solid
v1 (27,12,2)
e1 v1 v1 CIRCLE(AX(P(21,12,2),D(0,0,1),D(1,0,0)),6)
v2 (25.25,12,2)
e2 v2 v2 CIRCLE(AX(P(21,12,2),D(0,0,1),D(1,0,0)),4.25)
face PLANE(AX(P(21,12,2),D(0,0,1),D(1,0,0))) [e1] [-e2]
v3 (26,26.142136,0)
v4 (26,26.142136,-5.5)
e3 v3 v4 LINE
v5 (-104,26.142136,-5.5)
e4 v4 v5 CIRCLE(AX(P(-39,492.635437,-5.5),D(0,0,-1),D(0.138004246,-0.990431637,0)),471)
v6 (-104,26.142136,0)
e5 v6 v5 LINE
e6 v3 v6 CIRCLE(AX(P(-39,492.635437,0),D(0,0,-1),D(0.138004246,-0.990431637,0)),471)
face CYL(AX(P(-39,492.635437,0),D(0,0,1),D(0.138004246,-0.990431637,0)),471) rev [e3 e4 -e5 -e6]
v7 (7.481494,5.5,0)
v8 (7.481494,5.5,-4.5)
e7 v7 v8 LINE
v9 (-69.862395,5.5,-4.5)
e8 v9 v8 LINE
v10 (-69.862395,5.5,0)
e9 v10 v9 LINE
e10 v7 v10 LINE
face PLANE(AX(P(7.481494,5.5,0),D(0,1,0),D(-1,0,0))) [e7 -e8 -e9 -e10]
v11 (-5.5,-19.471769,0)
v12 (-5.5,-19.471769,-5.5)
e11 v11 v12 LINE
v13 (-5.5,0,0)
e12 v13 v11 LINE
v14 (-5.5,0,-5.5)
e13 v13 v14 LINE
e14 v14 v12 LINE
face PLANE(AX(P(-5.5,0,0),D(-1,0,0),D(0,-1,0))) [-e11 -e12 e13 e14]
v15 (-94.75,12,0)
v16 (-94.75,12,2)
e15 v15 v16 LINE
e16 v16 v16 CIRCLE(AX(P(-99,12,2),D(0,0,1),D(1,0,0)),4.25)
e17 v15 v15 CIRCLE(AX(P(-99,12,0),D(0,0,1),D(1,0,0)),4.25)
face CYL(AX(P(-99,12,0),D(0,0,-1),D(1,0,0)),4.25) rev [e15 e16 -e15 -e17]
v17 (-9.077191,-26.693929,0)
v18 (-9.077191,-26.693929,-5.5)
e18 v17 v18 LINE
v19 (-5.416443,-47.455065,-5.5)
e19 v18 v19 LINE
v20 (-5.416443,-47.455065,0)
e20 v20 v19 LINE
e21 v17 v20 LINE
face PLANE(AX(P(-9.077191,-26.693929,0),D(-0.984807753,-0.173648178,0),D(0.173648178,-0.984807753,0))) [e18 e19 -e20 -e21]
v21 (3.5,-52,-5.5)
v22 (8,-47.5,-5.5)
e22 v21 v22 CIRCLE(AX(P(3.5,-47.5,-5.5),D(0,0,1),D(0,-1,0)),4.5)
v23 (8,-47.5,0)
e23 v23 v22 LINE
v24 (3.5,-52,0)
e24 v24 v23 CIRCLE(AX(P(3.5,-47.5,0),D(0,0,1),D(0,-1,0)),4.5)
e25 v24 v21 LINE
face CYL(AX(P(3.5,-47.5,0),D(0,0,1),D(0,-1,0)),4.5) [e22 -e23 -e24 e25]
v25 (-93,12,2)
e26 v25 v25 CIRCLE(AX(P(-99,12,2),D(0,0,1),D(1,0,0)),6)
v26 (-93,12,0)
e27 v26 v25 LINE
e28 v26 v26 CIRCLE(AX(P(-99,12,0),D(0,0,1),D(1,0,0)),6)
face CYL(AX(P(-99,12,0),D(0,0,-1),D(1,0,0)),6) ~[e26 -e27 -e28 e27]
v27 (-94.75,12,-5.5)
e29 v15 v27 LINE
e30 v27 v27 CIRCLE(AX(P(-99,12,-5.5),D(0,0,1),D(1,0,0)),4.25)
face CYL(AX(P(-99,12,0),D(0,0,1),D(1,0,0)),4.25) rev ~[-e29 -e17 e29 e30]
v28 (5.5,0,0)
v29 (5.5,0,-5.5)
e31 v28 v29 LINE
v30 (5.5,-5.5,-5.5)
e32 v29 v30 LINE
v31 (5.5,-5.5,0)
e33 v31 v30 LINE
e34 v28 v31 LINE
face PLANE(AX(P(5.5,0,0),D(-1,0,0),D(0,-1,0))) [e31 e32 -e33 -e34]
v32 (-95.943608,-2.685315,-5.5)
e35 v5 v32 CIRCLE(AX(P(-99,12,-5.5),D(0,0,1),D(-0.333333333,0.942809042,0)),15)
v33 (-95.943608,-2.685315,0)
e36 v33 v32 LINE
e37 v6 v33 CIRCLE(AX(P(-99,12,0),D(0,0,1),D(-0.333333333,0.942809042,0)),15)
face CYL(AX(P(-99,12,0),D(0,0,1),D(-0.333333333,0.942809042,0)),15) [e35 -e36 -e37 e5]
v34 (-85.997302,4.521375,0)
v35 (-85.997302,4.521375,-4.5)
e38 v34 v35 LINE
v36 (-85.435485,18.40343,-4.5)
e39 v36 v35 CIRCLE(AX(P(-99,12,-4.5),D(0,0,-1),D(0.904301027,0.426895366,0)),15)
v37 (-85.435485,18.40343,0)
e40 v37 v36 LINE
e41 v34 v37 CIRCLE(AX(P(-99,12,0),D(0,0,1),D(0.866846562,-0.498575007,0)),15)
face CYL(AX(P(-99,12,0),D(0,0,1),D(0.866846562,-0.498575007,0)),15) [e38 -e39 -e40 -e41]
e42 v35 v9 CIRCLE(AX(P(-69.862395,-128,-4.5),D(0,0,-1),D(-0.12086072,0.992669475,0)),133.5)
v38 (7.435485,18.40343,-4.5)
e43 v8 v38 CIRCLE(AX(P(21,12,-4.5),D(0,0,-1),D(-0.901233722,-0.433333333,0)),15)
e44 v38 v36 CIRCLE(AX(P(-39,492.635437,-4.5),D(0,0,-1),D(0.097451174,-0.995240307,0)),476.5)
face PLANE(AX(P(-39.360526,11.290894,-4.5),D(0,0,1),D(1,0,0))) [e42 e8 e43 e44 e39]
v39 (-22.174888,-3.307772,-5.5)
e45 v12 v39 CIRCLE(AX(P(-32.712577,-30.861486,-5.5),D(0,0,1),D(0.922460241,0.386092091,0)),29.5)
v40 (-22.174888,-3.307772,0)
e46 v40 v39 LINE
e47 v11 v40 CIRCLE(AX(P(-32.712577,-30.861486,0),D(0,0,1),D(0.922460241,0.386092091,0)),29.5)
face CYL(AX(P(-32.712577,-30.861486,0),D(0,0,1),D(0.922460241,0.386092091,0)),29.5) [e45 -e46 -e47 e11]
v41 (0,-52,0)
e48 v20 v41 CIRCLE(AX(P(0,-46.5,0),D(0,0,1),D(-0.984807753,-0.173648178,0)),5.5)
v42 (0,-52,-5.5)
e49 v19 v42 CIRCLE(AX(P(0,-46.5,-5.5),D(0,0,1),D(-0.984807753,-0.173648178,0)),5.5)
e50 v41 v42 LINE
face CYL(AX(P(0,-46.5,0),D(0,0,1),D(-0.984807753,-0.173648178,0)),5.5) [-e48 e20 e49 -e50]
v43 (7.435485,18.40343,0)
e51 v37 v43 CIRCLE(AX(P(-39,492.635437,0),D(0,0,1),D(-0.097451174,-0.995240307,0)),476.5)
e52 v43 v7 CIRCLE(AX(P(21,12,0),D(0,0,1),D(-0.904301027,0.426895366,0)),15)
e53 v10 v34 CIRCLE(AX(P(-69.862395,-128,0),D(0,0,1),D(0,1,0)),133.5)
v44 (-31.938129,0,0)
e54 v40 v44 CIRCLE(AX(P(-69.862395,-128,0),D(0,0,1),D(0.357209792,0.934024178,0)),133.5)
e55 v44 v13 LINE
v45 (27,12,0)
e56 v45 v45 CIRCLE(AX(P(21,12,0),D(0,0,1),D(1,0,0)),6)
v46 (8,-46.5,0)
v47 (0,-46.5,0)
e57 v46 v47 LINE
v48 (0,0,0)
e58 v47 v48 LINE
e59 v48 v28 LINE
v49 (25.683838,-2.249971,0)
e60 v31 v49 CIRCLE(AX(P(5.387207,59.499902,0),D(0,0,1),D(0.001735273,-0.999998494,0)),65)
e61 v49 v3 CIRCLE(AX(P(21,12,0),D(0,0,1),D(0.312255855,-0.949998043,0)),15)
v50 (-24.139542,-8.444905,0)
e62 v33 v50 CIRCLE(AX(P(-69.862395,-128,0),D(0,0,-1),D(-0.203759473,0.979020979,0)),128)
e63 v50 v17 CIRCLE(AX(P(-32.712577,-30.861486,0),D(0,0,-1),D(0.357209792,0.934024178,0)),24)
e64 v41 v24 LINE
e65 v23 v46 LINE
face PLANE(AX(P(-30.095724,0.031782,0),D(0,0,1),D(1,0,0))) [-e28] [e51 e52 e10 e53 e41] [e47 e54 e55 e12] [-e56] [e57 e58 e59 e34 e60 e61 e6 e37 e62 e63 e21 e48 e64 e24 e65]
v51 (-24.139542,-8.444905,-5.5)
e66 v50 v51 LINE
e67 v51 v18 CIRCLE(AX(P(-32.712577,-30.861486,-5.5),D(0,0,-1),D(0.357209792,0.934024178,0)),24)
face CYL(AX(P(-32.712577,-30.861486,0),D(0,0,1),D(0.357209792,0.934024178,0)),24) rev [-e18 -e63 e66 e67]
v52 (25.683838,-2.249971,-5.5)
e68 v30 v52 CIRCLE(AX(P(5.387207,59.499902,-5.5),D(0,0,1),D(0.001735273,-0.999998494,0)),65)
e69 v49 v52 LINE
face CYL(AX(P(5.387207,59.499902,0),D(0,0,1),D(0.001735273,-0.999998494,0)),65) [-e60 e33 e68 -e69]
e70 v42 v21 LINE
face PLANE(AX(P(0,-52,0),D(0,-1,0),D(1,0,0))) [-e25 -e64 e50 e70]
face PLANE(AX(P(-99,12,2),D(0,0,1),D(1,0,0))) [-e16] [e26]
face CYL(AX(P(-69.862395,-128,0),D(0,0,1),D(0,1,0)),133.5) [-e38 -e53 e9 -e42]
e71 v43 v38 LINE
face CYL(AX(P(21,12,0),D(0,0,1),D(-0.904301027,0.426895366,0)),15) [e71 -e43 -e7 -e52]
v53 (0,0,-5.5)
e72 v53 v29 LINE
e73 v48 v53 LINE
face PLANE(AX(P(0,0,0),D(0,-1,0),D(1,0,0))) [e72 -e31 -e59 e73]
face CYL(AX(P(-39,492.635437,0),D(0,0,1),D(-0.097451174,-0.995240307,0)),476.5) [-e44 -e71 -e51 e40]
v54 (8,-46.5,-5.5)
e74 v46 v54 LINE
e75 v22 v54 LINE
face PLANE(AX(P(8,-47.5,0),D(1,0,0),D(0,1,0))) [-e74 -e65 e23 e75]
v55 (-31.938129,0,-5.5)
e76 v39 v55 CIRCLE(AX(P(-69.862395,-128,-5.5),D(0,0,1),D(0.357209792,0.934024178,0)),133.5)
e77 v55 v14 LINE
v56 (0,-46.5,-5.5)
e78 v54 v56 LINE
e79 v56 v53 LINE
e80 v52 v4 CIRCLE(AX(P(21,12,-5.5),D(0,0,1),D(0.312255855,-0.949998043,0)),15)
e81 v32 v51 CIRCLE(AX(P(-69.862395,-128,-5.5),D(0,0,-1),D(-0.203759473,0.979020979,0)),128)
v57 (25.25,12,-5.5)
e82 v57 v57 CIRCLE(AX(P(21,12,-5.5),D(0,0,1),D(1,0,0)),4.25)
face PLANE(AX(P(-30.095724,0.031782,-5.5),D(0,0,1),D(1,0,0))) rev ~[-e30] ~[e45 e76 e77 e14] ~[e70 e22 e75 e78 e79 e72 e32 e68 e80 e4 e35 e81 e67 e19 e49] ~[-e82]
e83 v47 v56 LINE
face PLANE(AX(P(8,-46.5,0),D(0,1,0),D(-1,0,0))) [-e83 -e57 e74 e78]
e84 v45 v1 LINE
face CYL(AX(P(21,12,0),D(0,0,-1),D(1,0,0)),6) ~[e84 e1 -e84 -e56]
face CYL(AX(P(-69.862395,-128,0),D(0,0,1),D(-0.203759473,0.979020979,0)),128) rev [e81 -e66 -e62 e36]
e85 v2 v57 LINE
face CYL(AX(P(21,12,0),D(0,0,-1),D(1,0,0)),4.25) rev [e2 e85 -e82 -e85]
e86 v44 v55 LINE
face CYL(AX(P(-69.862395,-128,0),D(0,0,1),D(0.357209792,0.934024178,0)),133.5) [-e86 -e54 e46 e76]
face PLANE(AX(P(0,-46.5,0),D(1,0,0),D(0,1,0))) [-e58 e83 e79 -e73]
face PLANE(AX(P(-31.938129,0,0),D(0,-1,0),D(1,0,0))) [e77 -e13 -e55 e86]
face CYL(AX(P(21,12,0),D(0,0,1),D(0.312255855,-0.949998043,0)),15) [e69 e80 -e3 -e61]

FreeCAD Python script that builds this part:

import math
import FreeCAD as App
import Part
import Sketcher
Q = App.Units.Quantity

doc = App.newDocument("Part")
body = doc.addObject("PartDesign::Body", "Body")

# Sketch on XY plane
sketch1 = body.newObject("Sketcher::SketchObject", "Sketch")
sketch1.AttachmentSupport = (doc.getObject("XY_Plane"), [""])
sketch1.MapMode = "FlatFace"
sketch1.addGeometry([
    Part.ArcOfCircle(Part.Circle(App.Vector(5.387207, 59.499902, 0), App.Vector(0, 0, 1), 65), math.radians(-89.900576), math.radians(-71.804769)),  # 0
    Part.ArcOfCircle(Part.Circle(App.Vector(21, 12, 0), App.Vector(0, 0, 1), 15), math.radians(-71.804769), math.radians(70.528779)),  # 1
    Part.ArcOfCircle(Part.Circle(App.Vector(-39, 492.635437, 0), App.Vector(0, 0, 1), 471), math.radians(-97.932377), math.radians(-82.067623)),  # 2
    Part.ArcOfCircle(Part.Circle(App.Vector(-99, 12, 0), App.Vector(0, 0, 1), 15), math.radians(109.471221), math.radians(281.756889)),  # 3
    Part.ArcOfCircle(Part.Circle(App.Vector(-69.862395, -128, 0), App.Vector(0, 0, 1), 128), math.radians(69.071062), math.radians(101.756889)),  # 4
    Part.ArcOfCircle(Part.Circle(App.Vector(-32.712577, -30.861486, 0), App.Vector(0, 0, 1), 24), math.radians(10), math.radians(69.071062)),  # 5
    Part.LineSegment(App.Vector(-9.077191, -26.693929, 0), App.Vector(-5.416443, -47.455065, 0)),  # 6
    Part.ArcOfCircle(Part.Circle(App.Vector(0, -46.5, 0), App.Vector(0, 0, 1), 5.5), math.radians(-170), math.radians(-90)),  # 7
    Part.LineSegment(App.Vector(0, -52, 0), App.Vector(3.5, -52, 0)),  # 8
    Part.ArcOfCircle(Part.Circle(App.Vector(3.5, -47.5, 0), App.Vector(0, 0, 1), 4.5), math.radians(-90), math.radians(0)),  # 9
    Part.LineSegment(App.Vector(8, -47.5, 0), App.Vector(8, -46.5, 0)),  # 10
    Part.LineSegment(App.Vector(8, -46.5, 0), App.Vector(0, -46.5, 0)),  # 11
    Part.LineSegment(App.Vector(0, -46.5, 0), App.Vector(0, 0, 0)),  # 12
    Part.LineSegment(App.Vector(0, 0, 0), App.Vector(5.5, 0, 0)),  # 13
    Part.LineSegment(App.Vector(5.5, 0, 0), App.Vector(5.5, -5.5, 0)),  # 14
    Part.LineSegment(App.Vector(-5.5, 0, 0), App.Vector(-5.5, -19.471769, 0)),  # 15
    Part.ArcOfCircle(Part.Circle(App.Vector(-32.712577, -30.861486, 0), App.Vector(0, 0, 1), 29.5), math.radians(22.711555), math.radians(69.071062)),  # 16
    Part.ArcOfCircle(Part.Circle(App.Vector(-69.862395, -128, 0), App.Vector(0, 0, 1), 133.5), math.radians(69.071062), math.radians(73.496321)),  # 17
    Part.LineSegment(App.Vector(-31.938129, 0, 0), App.Vector(-5.5, 0, 0)),  # 18
    Part.Circle(App.Vector(-99, 12, 0), App.Vector(0, 0, 1), 4.25),  # 19
    Part.LineSegment(App.Vector(7.481494, 5.5, 0), App.Vector(-69.862395, 5.5, 0)),  # 20
    Part.ArcOfCircle(Part.Circle(App.Vector(-69.862395, -128, 0), App.Vector(0, 0, 1), 133.5), math.radians(90), math.radians(96.94178)),  # 21
    Part.ArcOfCircle(Part.Circle(App.Vector(-99, 12, 0), App.Vector(0, 0, 1), 15), math.radians(-29.905768), math.radians(25.270693)),  # 22
    Part.ArcOfCircle(Part.Circle(App.Vector(-39, 492.635437, 0), App.Vector(0, 0, 1), 476.5), math.radians(-95.592417), math.radians(-84.407583)),  # 23
    Part.ArcOfCircle(Part.Circle(App.Vector(21, 12, 0), App.Vector(0, 0, 1), 15), math.radians(154.729307), math.radians(205.679289)),  # 24
    Part.Circle(App.Vector(21, 12, 0), App.Vector(0, 0, 1), 4.25),  # 25
], False)
sketch1.addConstraint([
    Sketcher.Constraint("Tangent", 0, 2, 1, 1),
    Sketcher.Constraint("Coincident", 1, 2, 2, 2),
    Sketcher.Constraint("Coincident", 2, 1, 3, 1),
    Sketcher.Constraint("Tangent", 3, 2, 4, 2),
    Sketcher.Constraint("Tangent", 4, 1, 5, 2),
    Sketcher.Constraint("Tangent", 5, 1, 6, 1),
    Sketcher.Constraint("Tangent", 6, 2, 7, 1),
    Sketcher.Constraint("Tangent", 7, 2, 8, 1),
    Sketcher.Constraint("Tangent", 8, 2, 9, 1),
    Sketcher.Constraint("Tangent", 9, 2, 10, 1),
    Sketcher.Constraint("Coincident", 10, 2, 11, 1),
    Sketcher.Constraint("Coincident", 11, 2, 12, 1),
    Sketcher.Constraint("Coincident", 12, 2, 13, 1),
    Sketcher.Constraint("Coincident", 13, 2, 14, 1),
    Sketcher.Constraint("Coincident", 14, 2, 0, 1),
    Sketcher.Constraint("Coincident", 15, 2, 16, 1),
    Sketcher.Constraint("Tangent", 16, 2, 17, 1),
    Sketcher.Constraint("Coincident", 17, 2, 18, 1),
    Sketcher.Constraint("Coincident", 18, 2, 15, 1),
    Sketcher.Constraint("Tangent", 20, 2, 21, 1),
    Sketcher.Constraint("Coincident", 21, 2, 22, 1),
    Sketcher.Constraint("Coincident", 22, 2, 23, 1),
    Sketcher.Constraint("Coincident", 23, 2, 24, 1),
    Sketcher.Constraint("Coincident", 24, 2, 20, 1),
    Sketcher.Constraint("Horizontal", 8),
    Sketcher.Constraint("Vertical", 10),
    Sketcher.Constraint("Horizontal", 11),
    Sketcher.Constraint("Vertical", 12),
    Sketcher.Constraint("Horizontal", 13),
    Sketcher.Constraint("Vertical", 14),
    Sketcher.Constraint("Vertical", 15),
    Sketcher.Constraint("Horizontal", 18),
    Sketcher.Constraint("Horizontal", 20),
    Sketcher.Constraint("Coincident", 12, 2, -1, 1),
    Sketcher.Constraint("Coincident", 16, 3, 5, 3),
    Sketcher.Constraint("Coincident", 17, 3, 4, 3),
    Sketcher.Constraint("Coincident", 19, 3, 3, 3),
    Sketcher.Constraint("Coincident", 21, 3, 4, 3),
    Sketcher.Constraint("Coincident", 22, 3, 3, 3),
    Sketcher.Constraint("Coincident", 23, 3, 2, 3),
    Sketcher.Constraint("Coincident", 24, 3, 1, 3),
    Sketcher.Constraint("Coincident", 25, 3, 1, 3),
    Sketcher.Constraint("Coincident", 11, 2, 7, 3),
    Sketcher.Constraint("Equal", 1, 3),
    Sketcher.Constraint("Equal", 17, 21),
    Sketcher.Constraint("Equal", 3, 22),
    Sketcher.Constraint("Equal", 22, 24),
    Sketcher.Constraint("Equal", 19, 25),
    Sketcher.Constraint("Symmetric", 13, 2, 18, 2, -1, 1),
    Sketcher.Constraint("Horizontal", 1, 3, 3, 3),
    Sketcher.Constraint("Horizontal", 1, 2, 2, 1),
    Sketcher.Constraint("Equal", 13, 14),
    Sketcher.Constraint("Radius", 0, Q("65 mm")),
    Sketcher.Constraint("Radius", 1, Q("15 mm")),
    Sketcher.Constraint("Radius", 2, Q("471 mm")),
    Sketcher.Constraint("Radius", 4, Q("128 mm")),
    Sketcher.Constraint("Radius", 5, Q("24 mm")),
    Sketcher.Constraint("Diameter", 19, Q("8.5 mm")),
    Sketcher.Constraint("Radius", 7, Q("5.5 mm")),
    Sketcher.Constraint("Radius", 9, Q("4.5 mm")),
    Sketcher.Constraint("Radius", 16, Q("29.5 mm")),
    Sketcher.Constraint("Radius", 23, Q("476.5 mm")),
    Sketcher.Constraint("DistanceX", 11, 2, 11, 1, Q("8 mm")),
    Sketcher.Constraint("Angle", 6, Q("-80 deg")),
    Sketcher.Constraint("DistanceX", 13, 1, 13, 2, Q("5.5 mm")),
    Sketcher.Constraint("DistanceY", 12, 1, 12, 2, Q("46.5 mm")),
    Sketcher.Constraint("DistanceX", -1, 1, 1, 3, Q("21 mm")),
    Sketcher.Constraint("DistanceY", -1, 1, 1, 3, Q("12 mm")),
    Sketcher.Constraint("DistanceX", 2, 3, -1, 1, Q("39 mm")),
    Sketcher.Constraint("DistanceY", 4, 3, -1, 1, Q("128 mm")),
    Sketcher.Constraint("DistanceX", -1, 1, 1, 2, Q("26 mm")),
])
pad1 = body.newObject("PartDesign::Pad", "Pad")
pad1.Profile = sketch1
pad1.Length = 5.5
pad1.Reversed = True

# Sketch on XY plane
sketch2 = body.newObject("Sketcher::SketchObject", "Sketch001")
sketch2.AttachmentSupport = (doc.getObject("XY_Plane"), [""])
sketch2.MapMode = "FlatFace"
sketch2.addGeometry([
    Part.Circle(App.Vector(21, 12, 0), App.Vector(0, 0, 1), 6),
    Part.Circle(App.Vector(21, 12, 0), App.Vector(0, 0, 1), 4.25),
    Part.Circle(App.Vector(-99, 12, 0), App.Vector(0, 0, 1), 6),
    Part.Circle(App.Vector(-99, 12, 0), App.Vector(0, 0, 1), 4.25),
], False)
sketch2.addConstraint([
    Sketcher.Constraint("Coincident", 1, 3, 0, 3),
    Sketcher.Constraint("Coincident", 3, 3, 2, 3),
    Sketcher.Constraint("Equal", 0, 2),
    Sketcher.Constraint("Equal", 1, 3),
    Sketcher.Constraint("Horizontal", 1, 3, 2, 3),
    Sketcher.Constraint("Diameter", 0, Q("12 mm")),
    Sketcher.Constraint("Diameter", 1, Q("8.5 mm")),
    Sketcher.Constraint("DistanceX", -1, 1, 0, 3, Q("21 mm")),
    Sketcher.Constraint("DistanceY", -1, 1, 0, 3, Q("12 mm")),
    Sketcher.Constraint("DistanceX", 2, 3, -1, 1, Q("99 mm")),
])
pad2 = body.newObject("PartDesign::Pad", "Pad001")
pad2.Profile = sketch2
pad2.Length = 2

# Sketch on XY plane
sketch3 = body.newObject("Sketcher::SketchObject", "Sketch002")
sketch3.AttachmentSupport = (doc.getObject("XY_Plane"), [""])
sketch3.MapMode = "FlatFace"
sketch3.AttachmentOffset = App.Placement(App.Vector(0, 0, -4.5), App.Rotation())
sketch3.addGeometry([
    Part.ArcOfCircle(Part.Circle(App.Vector(-99, 12, 0), App.Vector(0, 0, 1), 15), math.radians(-29.905768), math.radians(25.270693)),  # 0
    Part.ArcOfCircle(Part.Circle(App.Vector(-69.862395, -128, 0), App.Vector(0, 0, 1), 133.5), math.radians(90), math.radians(96.94178)),  # 1
    Part.LineSegment(App.Vector(-69.862395, 5.5, 0), App.Vector(7.481494, 5.5, 0)),  # 2
    Part.ArcOfCircle(Part.Circle(App.Vector(21, 12, 0), App.Vector(0, 0, 1), 15), math.radians(154.729307), math.radians(205.679289)),  # 3
    Part.ArcOfCircle(Part.Circle(App.Vector(-39, 492.635437, 0), App.Vector(0, 0, 1), 476.5), math.radians(-95.592417), math.radians(-84.407583)),  # 4
], False)
sketch3.addConstraint([
    Sketcher.Constraint("Coincident", 0, 1, 1, 2),
    Sketcher.Constraint("Tangent", 1, 1, 2, 1),
    Sketcher.Constraint("Coincident", 2, 2, 3, 2),
    Sketcher.Constraint("Coincident", 3, 1, 4, 2),
    Sketcher.Constraint("Coincident", 4, 1, 0, 2),
    Sketcher.Constraint("Horizontal", 2),
    Sketcher.Constraint("Equal", 0, 3),
    Sketcher.Constraint("Horizontal", 0, 3, 3, 3),
    Sketcher.Constraint("Horizontal", 3, 1, 4, 1),
    Sketcher.Constraint("Radius", 0, Q("15 mm")),
    Sketcher.Constraint("Radius", 1, Q("133.5 mm")),
    Sketcher.Constraint("Radius", 4, Q("476.5 mm")),
    Sketcher.Constraint("DistanceX", 0, 3, -1, 1, Q("99 mm")),
    Sketcher.Constraint("DistanceY", -1, 1, 0, 3, Q("12 mm")),
    Sketcher.Constraint("DistanceY", 1, 3, -1, 1, Q("128 mm")),
    Sketcher.Constraint("DistanceX", -1, 1, 3, 3, Q("21 mm")),
    Sketcher.Constraint("DistanceX", 2, 1, 2, 2, Q("77.34389 mm")),
    Sketcher.Constraint("DistanceY", -1, 1, 3, 1, Q("18.40343 mm")),
])
pad3 = body.newObject("PartDesign::Pad", "Pad002")
pad3.Profile = sketch3
pad3.Length = 1
pad3.Reversed = True

doc.recompute()
